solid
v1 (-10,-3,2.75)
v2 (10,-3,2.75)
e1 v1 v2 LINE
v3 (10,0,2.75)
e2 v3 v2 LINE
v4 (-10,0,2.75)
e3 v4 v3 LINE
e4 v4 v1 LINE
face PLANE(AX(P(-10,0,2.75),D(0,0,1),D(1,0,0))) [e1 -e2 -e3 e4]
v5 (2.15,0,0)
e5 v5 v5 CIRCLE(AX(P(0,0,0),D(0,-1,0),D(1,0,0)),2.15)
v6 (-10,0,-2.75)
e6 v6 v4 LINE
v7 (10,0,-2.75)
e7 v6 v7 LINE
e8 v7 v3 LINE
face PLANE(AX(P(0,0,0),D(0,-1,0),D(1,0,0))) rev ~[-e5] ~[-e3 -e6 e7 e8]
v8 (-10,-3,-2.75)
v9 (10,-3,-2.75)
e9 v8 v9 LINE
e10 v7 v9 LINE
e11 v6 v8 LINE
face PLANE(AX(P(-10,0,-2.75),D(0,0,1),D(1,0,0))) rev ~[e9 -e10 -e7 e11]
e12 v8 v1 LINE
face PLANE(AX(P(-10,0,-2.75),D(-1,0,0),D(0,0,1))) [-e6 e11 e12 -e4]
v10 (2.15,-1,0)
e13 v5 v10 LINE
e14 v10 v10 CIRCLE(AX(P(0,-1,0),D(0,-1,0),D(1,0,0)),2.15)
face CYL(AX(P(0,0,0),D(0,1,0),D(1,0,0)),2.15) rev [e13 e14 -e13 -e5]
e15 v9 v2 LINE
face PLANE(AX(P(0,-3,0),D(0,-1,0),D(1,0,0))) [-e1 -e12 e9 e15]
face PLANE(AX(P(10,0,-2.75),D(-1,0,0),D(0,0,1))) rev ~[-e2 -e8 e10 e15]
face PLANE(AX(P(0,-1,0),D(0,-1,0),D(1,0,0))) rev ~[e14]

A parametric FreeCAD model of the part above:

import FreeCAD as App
import Part
import Sketcher

doc = App.newDocument("Part")
params = doc.addObject("Spreadsheet::Sheet", "Params")
for row, (alias, value) in enumerate([
    ("sketch1_width", "20 mm"),
    ("sketch1_height", "5.5 mm"),
    ("pad1_length", "3 mm"),
    ("sketch2_diameter", "4.3 mm"),
    ("pocket1_length", "1 mm"),
], start=1):
    params.set(f"A{row}", alias)
    params.set(f"B{row}", "=" + value)
    params.setAlias(f"B{row}", alias)

body = doc.addObject("PartDesign::Body", "Body")

# Sketch on XZ plane
sketch1 = doc.addObject("Sketcher::SketchObject", "Sketch")
body.addObject(sketch1)
sketch1.AttachmentSupport = (doc.XZ_Plane, [""])
sketch1.MapMode = "FlatFace"
sketch1.addGeometry([
    Part.LineSegment(App.Vector(-10, 3, 0), App.Vector(-10, -3, 0)),
    Part.LineSegment(App.Vector(-10, -3, 0), App.Vector(10, -3, 0)),
    Part.LineSegment(App.Vector(10, -3, 0), App.Vector(10, 3, 0)),
    Part.LineSegment(App.Vector(10, 3, 0), App.Vector(-10, 3, 0)),
], False)
sketch1.addConstraint([
    Sketcher.Constraint("Coincident", 0, 2, 1, 1),
    Sketcher.Constraint("Coincident", 1, 2, 2, 1),
    Sketcher.Constraint("Coincident", 2, 2, 3, 1),
    Sketcher.Constraint("Coincident", 3, 2, 0, 1),
    Sketcher.Constraint("Vertical", 0),
    Sketcher.Constraint("Horizontal", 1),
    Sketcher.Constraint("Vertical", 2),
    Sketcher.Constraint("Horizontal", 3),
    Sketcher.Constraint("Symmetric", 0, 2, 2, 2, -1, 1),
    Sketcher.Constraint("DistanceX", 1, 1, 1, 2, 20.0),
    Sketcher.Constraint("DistanceY", 0, 2, 0, 1, 5.5),
])
sketch1.setExpression("Constraints[9]", "Params.sketch1_width")
sketch1.setExpression("Constraints[10]", "Params.sketch1_height")
pad1 = doc.addObject("PartDesign::Pad", "Pad")
body.addObject(pad1)
pad1.Profile = sketch1
pad1.setExpression("Length", "Params.pad1_length")

# Sketch on XZ plane
sketch2 = doc.addObject("Sketcher::SketchObject", "Sketch001")
body.addObject(sketch2)
sketch2.AttachmentSupport = (doc.XZ_Plane, [""])
sketch2.MapMode = "FlatFace"
sketch2.addGeometry(Part.Circle(App.Vector(0, 0, 0), App.Vector(0, 0, 1), 2.1), False)
sketch2.addConstraint([
    Sketcher.Constraint("Coincident", 0, 3, -1, 1),
    Sketcher.Constraint("Diameter", 0, 4.3),
])
sketch2.setExpression("Constraints[1]", "Params.sketch2_diameter")
pocket1 = doc.addObject("PartDesign::Pocket", "Pocket")
body.addObject(pocket1)
pocket1.Profile = sketch2
pocket1.setExpression("Length", "Params.pocket1_length")
pocket1.Reversed = True

doc.recompute()
